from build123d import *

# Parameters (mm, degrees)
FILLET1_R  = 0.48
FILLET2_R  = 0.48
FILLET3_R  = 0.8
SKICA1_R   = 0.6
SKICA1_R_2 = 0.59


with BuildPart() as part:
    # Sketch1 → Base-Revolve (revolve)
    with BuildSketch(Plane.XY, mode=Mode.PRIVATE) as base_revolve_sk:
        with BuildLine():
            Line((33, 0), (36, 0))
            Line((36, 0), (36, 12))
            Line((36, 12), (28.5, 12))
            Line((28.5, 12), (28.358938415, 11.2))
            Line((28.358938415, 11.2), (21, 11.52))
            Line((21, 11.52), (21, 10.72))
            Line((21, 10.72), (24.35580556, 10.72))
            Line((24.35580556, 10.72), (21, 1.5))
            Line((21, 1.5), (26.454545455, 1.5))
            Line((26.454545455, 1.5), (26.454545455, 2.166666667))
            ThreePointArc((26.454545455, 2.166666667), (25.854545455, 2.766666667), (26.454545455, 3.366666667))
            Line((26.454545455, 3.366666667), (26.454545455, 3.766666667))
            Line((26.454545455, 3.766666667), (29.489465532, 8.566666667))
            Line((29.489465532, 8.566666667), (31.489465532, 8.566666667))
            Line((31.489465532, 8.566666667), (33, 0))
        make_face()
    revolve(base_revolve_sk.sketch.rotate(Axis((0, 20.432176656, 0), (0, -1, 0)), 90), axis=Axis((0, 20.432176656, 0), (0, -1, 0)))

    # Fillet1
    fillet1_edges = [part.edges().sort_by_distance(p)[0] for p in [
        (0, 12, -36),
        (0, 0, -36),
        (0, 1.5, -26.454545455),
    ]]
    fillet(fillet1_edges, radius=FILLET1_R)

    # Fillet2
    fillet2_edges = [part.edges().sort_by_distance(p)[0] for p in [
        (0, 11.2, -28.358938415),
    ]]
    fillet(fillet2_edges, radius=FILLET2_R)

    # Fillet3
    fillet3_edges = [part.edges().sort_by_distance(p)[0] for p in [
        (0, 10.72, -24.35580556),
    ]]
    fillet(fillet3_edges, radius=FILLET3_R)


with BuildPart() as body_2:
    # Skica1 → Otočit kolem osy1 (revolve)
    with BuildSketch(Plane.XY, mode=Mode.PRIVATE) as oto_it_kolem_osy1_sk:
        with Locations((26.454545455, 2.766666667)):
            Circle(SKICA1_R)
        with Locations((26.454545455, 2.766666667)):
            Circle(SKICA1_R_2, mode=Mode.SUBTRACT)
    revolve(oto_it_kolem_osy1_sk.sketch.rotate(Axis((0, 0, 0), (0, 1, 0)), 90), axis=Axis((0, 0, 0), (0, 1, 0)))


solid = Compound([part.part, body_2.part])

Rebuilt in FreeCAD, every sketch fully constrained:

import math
import FreeCAD as App
import Part
import Sketcher

V = App.Vector
Q = App.Units.Quantity


def edges_at(feature, points):
    """Names of the edges that pass closest to the given points."""
    edges = feature.Shape.Edges
    near = lambda p: min(range(len(edges)), key=lambda i: edges[i].distToShape(Part.Vertex(*p))[0])
    return sorted({f"Edge{near(p) + 1}" for p in points})

doc = App.newDocument("Part")
body = doc.addObject("PartDesign::Body", "Body")

# Sketch on XY plane
sketch1 = doc.addObject("Sketcher::SketchObject", "Sketch")
body.addObject(sketch1)
sketch1.AttachmentSupport = (doc.XY_Plane, [""])
sketch1.MapMode = "FlatFace"
sketch1.addGeometry([
    Part.LineSegment(V(33, 0, 0), V(36, 0, 0)),  # 0
    Part.LineSegment(V(36, 0, 0), V(36, 12, 0)),  # 1
    Part.LineSegment(V(36, 12, 0), V(28.5, 12, 0)),  # 2
    Part.LineSegment(V(28.5, 12, 0), V(28.36, 11.2, 0)),  # 3
    Part.LineSegment(V(28.36, 11.2, 0), V(21, 11.52, 0)),  # 4
    Part.LineSegment(V(21, 11.52, 0), V(21, 10.72, 0)),  # 5
    Part.LineSegment(V(21, 10.72, 0), V(24.36, 10.72, 0)),  # 6
    Part.LineSegment(V(24.36, 10.72, 0), V(21, 1.5, 0)),  # 7
    Part.LineSegment(V(21, 1.5, 0), V(26.45, 1.5, 0)),  # 8
    Part.LineSegment(V(26.45, 1.5, 0), V(26.45, 2.17, 0)),  # 9
    Part.ArcOfCircle(Part.Circle(V(26.45, 2.77, 0), V(0, 0, 1), 0.6), math.radians(90), math.radians(270)),  # 10
    Part.LineSegment(V(26.45, 3.37, 0), V(26.45, 3.77, 0)),  # 11
    Part.LineSegment(V(26.45, 3.77, 0), V(29.49, 8.57, 0)),  # 12
    Part.LineSegment(V(29.49, 8.57, 0), V(31.49, 8.57, 0)),  # 13
    Part.LineSegment(V(31.49, 8.57, 0), V(33, 0, 0)),  # 14
], False)
sketch1.addConstraint([
    Sketcher.Constraint("Coincident", 0, 2, 1, 1),
    Sketcher.Constraint("Coincident", 1, 2, 2, 1),
    Sketcher.Constraint("Coincident", 2, 2, 3, 1),
    Sketcher.Constraint("Coincident", 3, 2, 4, 1),
    Sketcher.Constraint("Coincident", 4, 2, 5, 1),
    Sketcher.Constraint("Coincident", 5, 2, 6, 1),
    Sketcher.Constraint("Coincident", 6, 2, 7, 1),
    Sketcher.Constraint("Coincident", 7, 2, 8, 1),
    Sketcher.Constraint("Coincident", 8, 2, 9, 1),
    Sketcher.Constraint("Coincident", 9, 2, 10, 2),
    Sketcher.Constraint("Coincident", 10, 1, 11, 1),
    Sketcher.Constraint("Coincident", 11, 2, 12, 1),
    Sketcher.Constraint("Coincident", 12, 2, 13, 1),
    Sketcher.Constraint("Coincident", 13, 2, 14, 1),
    Sketcher.Constraint("Coincident", 14, 2, 0, 1),
    Sketcher.Constraint("Horizontal", 0),
    Sketcher.Constraint("Vertical", 1),
    Sketcher.Constraint("Horizontal", 2),
    Sketcher.Constraint("Vertical", 5),
    Sketcher.Constraint("Horizontal", 6),
    Sketcher.Constraint("Horizontal", 8),
    Sketcher.Constraint("Vertical", 9),
    Sketcher.Constraint("Vertical", 11),
    Sketcher.Constraint("Horizontal", 13),
    Sketcher.Constraint("PointOnObject", 0, 2, -1),
    Sketcher.Constraint("Vertical", 5, 2, 7, 2),
    Sketcher.Constraint("Vertical", 10, 3, 8, 2),
    Sketcher.Constraint("Vertical", 9, 2, 10, 1),
    Sketcher.Constraint("Radius", 10, Q("0.6 mm")),
    Sketcher.Constraint("DistanceX", 0, 1, 0, 2, Q("3 mm")),
    Sketcher.Constraint("DistanceX", 13, 1, 13, 2, Q("2 mm")),
    Sketcher.Constraint("DistanceY", 1, 1, 1, 2, Q("12 mm")),
    Sketcher.Constraint("Angle", 3, Q("-100 deg")),
    Sketcher.Constraint("Angle", 7, Q("-110 deg")),
    Sketcher.Constraint("Angle", 14, Q("-80 deg")),
    Sketcher.Constraint("DistanceX", 2, 2, 2, 1, Q("7.5 mm")),
    Sketcher.Constraint("DistanceY", 5, 2, 5, 1, Q("0.8 mm")),
    Sketcher.Constraint("DistanceY", 11, 1, 11, 2, Q("0.4 mm")),
    Sketcher.Constraint("DistanceX", -1, 1, 0, 2, Q("36 mm")),
    Sketcher.Constraint("DistanceX", -1, 1, 4, 2, Q("21 mm")),
    Sketcher.Constraint("DistanceY", -1, 1, 3, 2, Q("11.2 mm")),
    Sketcher.Constraint("DistanceY", -1, 1, 7, 2, Q("1.5 mm")),
    Sketcher.Constraint("DistanceY", 11, 2, 12, 2, Q("4.8 mm")),
    Sketcher.Constraint("DistanceY", -1, 1, 4, 2, Q("11.52 mm")),
    Sketcher.Constraint("Distance", 14, Q("8.698821 mm")),
    Sketcher.Constraint("DistanceX", 8, 1, 8, 2, Q("5.454545 mm")),
])
revolution = doc.addObject("PartDesign::Revolution", "Revolution")
body.addObject(revolution)
revolution.Profile = sketch1
revolution.ReferenceAxis = (sketch1, ["V_Axis"])
revolution.Angle = 360
doc.recompute()

fillet = doc.addObject("PartDesign::Fillet", "Fillet")
body.addObject(fillet)
fillet.Base = (revolution, edges_at(revolution, [(0, 12, -36), (0, 0, -36), (0, 1.5, -26.455)]))
fillet.Radius = 0.48
doc.recompute()

fillet2 = doc.addObject("PartDesign::Fillet", "Fillet001")
body.addObject(fillet2)
fillet2.Base = (fillet, edges_at(fillet, [(0, 11.2, -28.359)]))
fillet2.Radius = 0.48
doc.recompute()

fillet3 = doc.addObject("PartDesign::Fillet", "Fillet002")
body.addObject(fillet3)
fillet3.Base = (fillet2, edges_at(fillet2, [(0, 10.72, -24.356)]))
fillet3.Radius = 0.8
body2 = doc.addObject("PartDesign::Body", "Body001")

# Sketch on XY plane
sketch2 = doc.addObject("Sketcher::SketchObject", "Sketch001")
body2.addObject(sketch2)
sketch2.AttachmentSupport = (doc.getObject("XY_Plane001"), [""])
sketch2.MapMode = "FlatFace"
sketch2.addGeometry([
    Part.Circle(V(26.5, 2.8, 0), V(0, 0, 1), 0.6),
    Part.Circle(V(26.5, 2.8, 0), V(0, 0, 1), 0.6),
], False)
sketch2.addConstraint([
    Sketcher.Constraint("Coincident", 1, 3, 0, 3),
    Sketcher.Constraint("Diameter", 0, Q("1.2 mm")),
    Sketcher.Constraint("Diameter", 1, Q("1.18 mm")),
    Sketcher.Constraint("DistanceX", -1, 1, 0, 3, Q("26.454545 mm")),
    Sketcher.Constraint("DistanceY", -1, 1, 0, 3, Q("2.766667 mm")),
])
revolution2 = doc.addObject("PartDesign::Revolution", "Revolution001")
body2.addObject(revolution2)
revolution2.Profile = sketch2
revolution2.ReferenceAxis = (sketch2, ["V_Axis"])
revolution2.Angle = 360

doc.recompute()
